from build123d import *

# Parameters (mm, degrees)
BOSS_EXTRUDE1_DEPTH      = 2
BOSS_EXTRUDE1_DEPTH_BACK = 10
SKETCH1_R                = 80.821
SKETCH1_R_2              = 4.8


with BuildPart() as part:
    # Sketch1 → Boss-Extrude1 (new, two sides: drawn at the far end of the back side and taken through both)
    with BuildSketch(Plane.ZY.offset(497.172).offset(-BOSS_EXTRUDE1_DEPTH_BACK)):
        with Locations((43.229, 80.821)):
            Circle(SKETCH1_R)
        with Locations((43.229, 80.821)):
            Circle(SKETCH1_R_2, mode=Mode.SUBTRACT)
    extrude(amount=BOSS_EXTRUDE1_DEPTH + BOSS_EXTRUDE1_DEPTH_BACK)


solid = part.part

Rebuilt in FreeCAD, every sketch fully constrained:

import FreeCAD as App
import Part
import Sketcher
Q = App.Units.Quantity

doc = App.newDocument("Part")
body = doc.addObject("PartDesign::Body", "Body")

sketch1 = body.newObject("Sketcher::SketchObject", "Sketch")
sketch1.AttachmentSupport = (doc.getObject("YZ_Plane"), [""])
sketch1.MapMode = "FlatFace"
sketch1.AttachmentOffset = App.Placement(App.Vector(0, 0, -497.172), App.Rotation())
sketch1.addGeometry([
    Part.Circle(App.Vector(80.8, 43.2, 0), App.Vector(0, 0, 1), 80.8),
    Part.Circle(App.Vector(80.8, 43.2, 0), App.Vector(0, 0, 1), 4.8),
], False)
sketch1.addConstraint([
    Sketcher.Constraint("Coincident", 1, 3, 0, 3),
    Sketcher.Constraint("Diameter", 1, Q("9.6 mm")),
    Sketcher.Constraint("Diameter", 0, Q("161.642 mm")),
    Sketcher.Constraint("DistanceX", -1, 1, 0, 3, Q("80.821 mm")),
    Sketcher.Constraint("DistanceY", -1, 1, 0, 3, Q("43.229 mm")),
])
pad1 = body.newObject("PartDesign::Pad", "Pad")
pad1.Profile = sketch1
pad1.Type = "TwoLengths"
pad1.Length = 2
pad1.Length2 = 10
pad1.Reversed = True

doc.recompute()
